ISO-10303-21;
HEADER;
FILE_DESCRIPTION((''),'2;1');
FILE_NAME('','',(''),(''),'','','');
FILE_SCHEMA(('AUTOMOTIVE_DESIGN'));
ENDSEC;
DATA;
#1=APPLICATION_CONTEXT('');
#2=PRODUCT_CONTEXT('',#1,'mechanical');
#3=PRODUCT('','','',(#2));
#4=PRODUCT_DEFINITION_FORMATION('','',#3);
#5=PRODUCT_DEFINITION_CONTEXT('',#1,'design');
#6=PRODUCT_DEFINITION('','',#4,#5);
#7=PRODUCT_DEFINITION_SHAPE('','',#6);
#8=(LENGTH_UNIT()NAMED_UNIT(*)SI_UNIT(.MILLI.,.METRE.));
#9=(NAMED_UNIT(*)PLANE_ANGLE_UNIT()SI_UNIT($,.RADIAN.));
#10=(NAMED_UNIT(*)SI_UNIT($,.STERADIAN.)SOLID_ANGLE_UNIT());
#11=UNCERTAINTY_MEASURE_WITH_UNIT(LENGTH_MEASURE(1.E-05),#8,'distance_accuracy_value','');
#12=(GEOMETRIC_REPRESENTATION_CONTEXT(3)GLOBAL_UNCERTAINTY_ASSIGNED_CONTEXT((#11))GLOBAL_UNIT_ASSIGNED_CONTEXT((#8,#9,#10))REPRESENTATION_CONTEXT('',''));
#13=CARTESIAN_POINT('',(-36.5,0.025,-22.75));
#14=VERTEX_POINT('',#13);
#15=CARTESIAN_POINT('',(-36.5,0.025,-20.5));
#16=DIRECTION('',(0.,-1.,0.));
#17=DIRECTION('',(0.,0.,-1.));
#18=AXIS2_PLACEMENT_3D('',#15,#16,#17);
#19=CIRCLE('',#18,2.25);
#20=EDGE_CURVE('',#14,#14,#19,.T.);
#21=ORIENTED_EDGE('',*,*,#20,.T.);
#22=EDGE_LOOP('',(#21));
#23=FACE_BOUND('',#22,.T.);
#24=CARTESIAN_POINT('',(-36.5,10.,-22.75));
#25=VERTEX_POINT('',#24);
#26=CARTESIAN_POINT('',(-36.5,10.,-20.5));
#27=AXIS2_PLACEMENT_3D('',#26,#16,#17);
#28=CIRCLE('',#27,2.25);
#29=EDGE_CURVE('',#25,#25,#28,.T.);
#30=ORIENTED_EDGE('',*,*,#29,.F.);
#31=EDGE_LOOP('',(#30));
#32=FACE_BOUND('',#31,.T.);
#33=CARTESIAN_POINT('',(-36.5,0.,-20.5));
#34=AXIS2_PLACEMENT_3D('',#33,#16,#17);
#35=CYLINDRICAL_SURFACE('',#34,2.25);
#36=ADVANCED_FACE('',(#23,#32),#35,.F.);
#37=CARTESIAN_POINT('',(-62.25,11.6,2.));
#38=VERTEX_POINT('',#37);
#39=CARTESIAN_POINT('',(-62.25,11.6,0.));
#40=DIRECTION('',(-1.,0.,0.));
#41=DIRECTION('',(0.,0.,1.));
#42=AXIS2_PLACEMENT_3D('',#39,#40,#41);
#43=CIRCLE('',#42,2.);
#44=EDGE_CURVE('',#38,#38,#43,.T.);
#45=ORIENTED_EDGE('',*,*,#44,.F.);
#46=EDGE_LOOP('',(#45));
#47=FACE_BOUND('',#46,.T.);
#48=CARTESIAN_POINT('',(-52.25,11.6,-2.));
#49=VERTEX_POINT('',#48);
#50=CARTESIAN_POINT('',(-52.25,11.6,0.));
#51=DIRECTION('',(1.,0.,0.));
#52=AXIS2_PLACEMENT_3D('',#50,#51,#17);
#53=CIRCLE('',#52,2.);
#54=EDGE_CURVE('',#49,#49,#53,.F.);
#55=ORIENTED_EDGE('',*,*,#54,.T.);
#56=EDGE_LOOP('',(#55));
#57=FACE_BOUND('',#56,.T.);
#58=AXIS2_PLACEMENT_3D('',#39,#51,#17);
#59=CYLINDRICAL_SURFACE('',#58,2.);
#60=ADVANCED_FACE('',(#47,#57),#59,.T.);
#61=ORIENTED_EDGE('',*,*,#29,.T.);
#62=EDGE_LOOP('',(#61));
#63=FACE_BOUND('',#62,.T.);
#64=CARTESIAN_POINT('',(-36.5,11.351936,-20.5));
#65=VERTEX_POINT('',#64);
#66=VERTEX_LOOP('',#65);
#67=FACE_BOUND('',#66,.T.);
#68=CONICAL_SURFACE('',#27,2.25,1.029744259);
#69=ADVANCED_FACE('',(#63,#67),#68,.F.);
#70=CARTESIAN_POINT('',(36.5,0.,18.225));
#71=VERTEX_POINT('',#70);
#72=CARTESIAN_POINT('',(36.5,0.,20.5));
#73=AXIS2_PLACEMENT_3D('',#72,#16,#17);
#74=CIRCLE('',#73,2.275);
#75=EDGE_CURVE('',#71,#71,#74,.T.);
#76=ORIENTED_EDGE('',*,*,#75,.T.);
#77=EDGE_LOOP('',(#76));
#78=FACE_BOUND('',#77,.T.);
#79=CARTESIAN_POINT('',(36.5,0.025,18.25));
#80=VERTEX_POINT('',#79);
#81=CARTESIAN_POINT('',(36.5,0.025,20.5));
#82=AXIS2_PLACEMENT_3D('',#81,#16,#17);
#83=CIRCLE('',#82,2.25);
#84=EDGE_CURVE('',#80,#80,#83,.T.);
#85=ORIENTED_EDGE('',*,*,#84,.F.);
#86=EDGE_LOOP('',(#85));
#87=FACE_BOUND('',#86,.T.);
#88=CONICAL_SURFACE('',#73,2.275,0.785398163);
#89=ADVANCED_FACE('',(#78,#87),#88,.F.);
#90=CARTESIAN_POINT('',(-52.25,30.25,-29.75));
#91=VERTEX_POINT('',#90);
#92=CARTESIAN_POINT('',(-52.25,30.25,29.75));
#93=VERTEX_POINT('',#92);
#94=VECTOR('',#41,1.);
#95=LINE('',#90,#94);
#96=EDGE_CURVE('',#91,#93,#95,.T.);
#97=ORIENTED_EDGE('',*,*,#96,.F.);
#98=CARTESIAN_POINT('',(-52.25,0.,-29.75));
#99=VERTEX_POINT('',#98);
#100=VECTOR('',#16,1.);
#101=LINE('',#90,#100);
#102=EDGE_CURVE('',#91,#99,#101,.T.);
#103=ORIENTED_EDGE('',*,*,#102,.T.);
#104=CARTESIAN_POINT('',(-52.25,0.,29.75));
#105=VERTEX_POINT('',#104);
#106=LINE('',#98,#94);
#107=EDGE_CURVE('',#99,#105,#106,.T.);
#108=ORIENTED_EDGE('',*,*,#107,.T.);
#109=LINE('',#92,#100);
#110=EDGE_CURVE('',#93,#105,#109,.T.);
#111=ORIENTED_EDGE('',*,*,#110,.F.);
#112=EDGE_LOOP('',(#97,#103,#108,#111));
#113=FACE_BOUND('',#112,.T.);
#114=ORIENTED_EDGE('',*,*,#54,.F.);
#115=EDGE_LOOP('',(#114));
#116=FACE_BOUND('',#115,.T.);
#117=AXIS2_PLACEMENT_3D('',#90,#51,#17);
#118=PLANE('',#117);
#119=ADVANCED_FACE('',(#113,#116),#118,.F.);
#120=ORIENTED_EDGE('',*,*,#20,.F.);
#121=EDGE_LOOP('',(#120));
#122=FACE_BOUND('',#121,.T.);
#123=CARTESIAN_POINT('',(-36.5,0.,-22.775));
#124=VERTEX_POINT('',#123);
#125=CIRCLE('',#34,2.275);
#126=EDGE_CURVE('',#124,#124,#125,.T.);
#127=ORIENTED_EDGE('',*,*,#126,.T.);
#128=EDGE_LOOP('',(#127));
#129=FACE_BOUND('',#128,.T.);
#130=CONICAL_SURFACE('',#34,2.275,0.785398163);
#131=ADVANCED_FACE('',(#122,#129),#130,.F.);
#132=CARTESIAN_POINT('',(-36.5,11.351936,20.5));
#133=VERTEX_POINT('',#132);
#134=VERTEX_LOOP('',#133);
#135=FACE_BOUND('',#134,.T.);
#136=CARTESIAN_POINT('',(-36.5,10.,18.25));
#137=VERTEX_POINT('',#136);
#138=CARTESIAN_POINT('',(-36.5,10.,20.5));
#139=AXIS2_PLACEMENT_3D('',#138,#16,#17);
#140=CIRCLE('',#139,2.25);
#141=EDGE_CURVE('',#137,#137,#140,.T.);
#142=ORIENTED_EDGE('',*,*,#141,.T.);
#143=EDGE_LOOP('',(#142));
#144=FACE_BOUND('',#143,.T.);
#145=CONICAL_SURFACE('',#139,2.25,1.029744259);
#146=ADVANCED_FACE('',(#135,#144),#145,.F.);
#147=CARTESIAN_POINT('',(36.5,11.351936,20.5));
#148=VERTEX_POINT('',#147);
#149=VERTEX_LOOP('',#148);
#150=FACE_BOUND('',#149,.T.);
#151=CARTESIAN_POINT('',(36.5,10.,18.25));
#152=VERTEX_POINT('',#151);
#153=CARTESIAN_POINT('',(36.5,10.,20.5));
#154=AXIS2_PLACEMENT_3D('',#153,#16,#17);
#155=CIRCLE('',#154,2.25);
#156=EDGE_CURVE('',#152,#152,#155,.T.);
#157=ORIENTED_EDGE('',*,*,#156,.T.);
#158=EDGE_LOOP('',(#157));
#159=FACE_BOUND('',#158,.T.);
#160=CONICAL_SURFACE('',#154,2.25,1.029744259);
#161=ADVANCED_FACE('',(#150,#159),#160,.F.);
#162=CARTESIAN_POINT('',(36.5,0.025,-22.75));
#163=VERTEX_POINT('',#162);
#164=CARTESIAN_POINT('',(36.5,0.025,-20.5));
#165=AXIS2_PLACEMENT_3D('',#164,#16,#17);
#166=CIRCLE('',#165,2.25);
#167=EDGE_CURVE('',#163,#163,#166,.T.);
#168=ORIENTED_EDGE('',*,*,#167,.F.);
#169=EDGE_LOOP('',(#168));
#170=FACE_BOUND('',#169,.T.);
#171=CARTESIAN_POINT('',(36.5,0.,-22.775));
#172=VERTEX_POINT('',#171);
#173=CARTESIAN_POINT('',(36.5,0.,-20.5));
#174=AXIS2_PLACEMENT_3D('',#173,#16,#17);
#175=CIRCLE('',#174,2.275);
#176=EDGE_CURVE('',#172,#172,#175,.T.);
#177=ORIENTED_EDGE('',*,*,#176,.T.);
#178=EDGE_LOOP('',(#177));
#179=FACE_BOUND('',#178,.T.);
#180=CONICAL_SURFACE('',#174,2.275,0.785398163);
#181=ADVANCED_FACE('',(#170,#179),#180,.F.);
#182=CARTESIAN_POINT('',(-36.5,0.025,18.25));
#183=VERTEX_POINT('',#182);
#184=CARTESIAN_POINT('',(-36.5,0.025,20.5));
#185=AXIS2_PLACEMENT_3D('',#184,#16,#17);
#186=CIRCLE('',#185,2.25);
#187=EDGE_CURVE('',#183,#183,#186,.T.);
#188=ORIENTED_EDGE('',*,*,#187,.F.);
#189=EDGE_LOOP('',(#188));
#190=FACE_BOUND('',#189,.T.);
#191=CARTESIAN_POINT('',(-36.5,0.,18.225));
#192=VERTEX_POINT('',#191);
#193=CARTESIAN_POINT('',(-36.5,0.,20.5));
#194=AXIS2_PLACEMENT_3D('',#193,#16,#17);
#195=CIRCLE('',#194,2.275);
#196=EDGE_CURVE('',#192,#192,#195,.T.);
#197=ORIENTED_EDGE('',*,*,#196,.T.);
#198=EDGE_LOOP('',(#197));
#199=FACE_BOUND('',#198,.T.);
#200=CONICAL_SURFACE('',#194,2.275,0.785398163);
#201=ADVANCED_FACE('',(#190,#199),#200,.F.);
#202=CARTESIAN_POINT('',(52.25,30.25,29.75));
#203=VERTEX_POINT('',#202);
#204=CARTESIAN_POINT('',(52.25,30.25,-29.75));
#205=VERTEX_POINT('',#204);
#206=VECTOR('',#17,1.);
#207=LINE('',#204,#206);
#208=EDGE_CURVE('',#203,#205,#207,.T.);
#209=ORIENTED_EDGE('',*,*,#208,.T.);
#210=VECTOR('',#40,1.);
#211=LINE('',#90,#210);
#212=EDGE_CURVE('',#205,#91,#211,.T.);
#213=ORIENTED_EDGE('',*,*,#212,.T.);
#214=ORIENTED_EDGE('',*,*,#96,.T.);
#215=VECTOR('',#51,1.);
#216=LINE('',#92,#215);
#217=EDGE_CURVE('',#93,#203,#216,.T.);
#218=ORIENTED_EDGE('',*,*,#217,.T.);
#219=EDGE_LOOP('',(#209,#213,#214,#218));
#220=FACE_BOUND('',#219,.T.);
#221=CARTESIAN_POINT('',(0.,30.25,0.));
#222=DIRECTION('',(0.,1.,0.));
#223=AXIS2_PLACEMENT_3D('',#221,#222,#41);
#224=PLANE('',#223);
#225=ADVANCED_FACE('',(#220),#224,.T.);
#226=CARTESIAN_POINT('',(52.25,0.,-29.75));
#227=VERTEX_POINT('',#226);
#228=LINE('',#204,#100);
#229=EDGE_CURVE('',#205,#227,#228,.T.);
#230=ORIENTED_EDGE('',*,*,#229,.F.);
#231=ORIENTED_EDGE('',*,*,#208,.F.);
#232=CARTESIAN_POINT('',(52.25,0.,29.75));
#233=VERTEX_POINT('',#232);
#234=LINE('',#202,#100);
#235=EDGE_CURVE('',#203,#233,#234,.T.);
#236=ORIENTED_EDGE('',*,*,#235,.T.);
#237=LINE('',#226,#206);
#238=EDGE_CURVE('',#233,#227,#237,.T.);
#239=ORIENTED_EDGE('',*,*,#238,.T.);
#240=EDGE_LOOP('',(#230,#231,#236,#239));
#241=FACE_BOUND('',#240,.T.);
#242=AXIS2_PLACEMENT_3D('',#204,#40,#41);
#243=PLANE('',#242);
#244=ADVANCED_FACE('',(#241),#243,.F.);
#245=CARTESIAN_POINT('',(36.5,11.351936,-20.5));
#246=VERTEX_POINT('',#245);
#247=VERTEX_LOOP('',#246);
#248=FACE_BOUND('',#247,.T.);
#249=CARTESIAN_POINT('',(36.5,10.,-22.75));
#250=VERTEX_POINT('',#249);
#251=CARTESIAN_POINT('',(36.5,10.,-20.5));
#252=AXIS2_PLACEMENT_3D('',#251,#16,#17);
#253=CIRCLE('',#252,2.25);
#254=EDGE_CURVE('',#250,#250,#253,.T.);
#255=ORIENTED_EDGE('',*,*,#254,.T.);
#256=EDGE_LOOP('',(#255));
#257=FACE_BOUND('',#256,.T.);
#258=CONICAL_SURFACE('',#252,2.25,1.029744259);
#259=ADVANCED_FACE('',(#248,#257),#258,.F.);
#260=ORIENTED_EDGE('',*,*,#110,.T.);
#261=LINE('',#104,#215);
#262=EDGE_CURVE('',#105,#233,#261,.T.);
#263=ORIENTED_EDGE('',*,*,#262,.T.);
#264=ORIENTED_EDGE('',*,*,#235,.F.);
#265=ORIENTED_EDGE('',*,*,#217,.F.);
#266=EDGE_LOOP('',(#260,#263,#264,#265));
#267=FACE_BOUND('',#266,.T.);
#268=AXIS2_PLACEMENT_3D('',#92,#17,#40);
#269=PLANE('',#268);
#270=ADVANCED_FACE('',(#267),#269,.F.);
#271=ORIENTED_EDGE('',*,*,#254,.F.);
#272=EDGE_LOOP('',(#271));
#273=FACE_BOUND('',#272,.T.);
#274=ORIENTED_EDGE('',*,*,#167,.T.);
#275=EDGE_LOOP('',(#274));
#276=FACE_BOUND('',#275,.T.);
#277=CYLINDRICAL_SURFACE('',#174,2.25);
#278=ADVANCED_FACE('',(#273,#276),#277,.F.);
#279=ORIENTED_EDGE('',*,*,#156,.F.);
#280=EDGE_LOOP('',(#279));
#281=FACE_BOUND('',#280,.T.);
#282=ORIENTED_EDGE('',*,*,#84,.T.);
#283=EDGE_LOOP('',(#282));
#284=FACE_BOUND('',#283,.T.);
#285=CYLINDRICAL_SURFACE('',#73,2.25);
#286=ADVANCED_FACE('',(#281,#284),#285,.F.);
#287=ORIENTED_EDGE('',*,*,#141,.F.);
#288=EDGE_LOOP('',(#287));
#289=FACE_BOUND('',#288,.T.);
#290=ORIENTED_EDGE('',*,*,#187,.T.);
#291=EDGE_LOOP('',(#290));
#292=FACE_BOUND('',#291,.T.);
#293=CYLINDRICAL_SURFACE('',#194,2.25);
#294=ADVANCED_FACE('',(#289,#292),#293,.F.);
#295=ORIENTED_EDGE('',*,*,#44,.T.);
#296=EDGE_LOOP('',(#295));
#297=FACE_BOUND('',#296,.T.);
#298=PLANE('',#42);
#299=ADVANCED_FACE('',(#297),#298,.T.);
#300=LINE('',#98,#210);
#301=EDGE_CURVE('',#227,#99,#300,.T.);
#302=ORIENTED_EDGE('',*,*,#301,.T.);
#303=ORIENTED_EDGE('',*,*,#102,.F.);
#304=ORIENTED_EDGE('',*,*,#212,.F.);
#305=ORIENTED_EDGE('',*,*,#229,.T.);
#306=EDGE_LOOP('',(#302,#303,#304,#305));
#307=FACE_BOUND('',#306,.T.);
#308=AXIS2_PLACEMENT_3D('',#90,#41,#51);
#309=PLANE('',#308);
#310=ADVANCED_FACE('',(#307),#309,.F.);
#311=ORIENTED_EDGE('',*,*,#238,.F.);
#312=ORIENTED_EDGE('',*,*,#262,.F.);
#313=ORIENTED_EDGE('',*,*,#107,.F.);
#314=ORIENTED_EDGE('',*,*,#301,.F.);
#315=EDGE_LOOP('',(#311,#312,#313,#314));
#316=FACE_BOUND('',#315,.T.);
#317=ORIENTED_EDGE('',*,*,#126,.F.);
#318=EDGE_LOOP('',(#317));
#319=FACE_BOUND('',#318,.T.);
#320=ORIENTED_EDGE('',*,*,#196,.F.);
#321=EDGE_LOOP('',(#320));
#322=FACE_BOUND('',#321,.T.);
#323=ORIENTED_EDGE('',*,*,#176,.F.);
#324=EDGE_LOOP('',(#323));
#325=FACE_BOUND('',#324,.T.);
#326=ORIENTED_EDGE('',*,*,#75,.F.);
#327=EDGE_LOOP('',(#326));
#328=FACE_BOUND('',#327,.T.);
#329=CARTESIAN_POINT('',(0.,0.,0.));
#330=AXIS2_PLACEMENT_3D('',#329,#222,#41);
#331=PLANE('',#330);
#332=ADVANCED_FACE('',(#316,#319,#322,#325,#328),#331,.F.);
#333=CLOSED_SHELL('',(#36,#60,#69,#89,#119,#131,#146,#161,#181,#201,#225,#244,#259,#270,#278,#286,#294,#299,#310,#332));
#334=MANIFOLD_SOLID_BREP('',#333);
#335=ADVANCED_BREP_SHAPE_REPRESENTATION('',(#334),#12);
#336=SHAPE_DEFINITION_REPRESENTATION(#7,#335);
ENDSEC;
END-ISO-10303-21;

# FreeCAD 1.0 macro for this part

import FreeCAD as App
import Part
import Sketcher

V = App.Vector


def add_polygon(sketch, points):
    """Adds a closed chain of lines whose ends are joined by coincident constraints."""
    first, n = sketch.GeometryCount, len(points)
    for a, b in zip(points, points[1:] + points[:1]):
        sketch.addGeometry(Part.LineSegment(App.Vector(*a, 0), App.Vector(*b, 0)), False)
    for i in range(n):
        sketch.addConstraint(Sketcher.Constraint("Coincident", first + i, 2, first + (i + 1) % n, 1))

doc = App.newDocument("Part")
body = doc.addObject("PartDesign::Body", "Body")

sketch1 = body.newObject("Sketcher::SketchObject", "Sketch")
sketch1.AttachmentSupport = (doc.getObject("XZ_Plane"), [""])
sketch1.MapMode = "FlatFace"
add_polygon(sketch1, [(-52.25, -29.75), (-52.25, 29.75), (52.25, 29.75), (52.25, -29.75)])
sketch1.addConstraint([
    Sketcher.Constraint("Vertical", 0),
    Sketcher.Constraint("Horizontal", 1),
    Sketcher.Constraint("Vertical", 2),
    Sketcher.Constraint("Horizontal", 3),
    Sketcher.Constraint("Symmetric", 0, 2, 2, 2, -1, 1),
    Sketcher.Constraint("DistanceX", 1, 1, 1, 2, 104.5),
    Sketcher.Constraint("DistanceY", 0, 1, 0, 2, 59.5),
])
pad1 = body.newObject("PartDesign::Pad", "Pad")
pad1.Profile = sketch1
pad1.Length = 30.25
pad1.Reversed = True

sketch2 = body.newObject("Sketcher::SketchObject", "Sketch001")
sketch2.AttachmentSupport = (doc.getObject("YZ_Plane"), [""])
sketch2.MapMode = "FlatFace"
sketch2.AttachmentOffset = App.Placement(V(0, 0, -52.25), App.Rotation())
sketch2.addGeometry(Part.Circle(V(11.6, 0, 0), V(0, 0, 1), 2), False)
sketch2.addConstraint([
    Sketcher.Constraint("PointOnObject", 0, 3, -1),
    Sketcher.Constraint("Diameter", 0, 4.0),
    Sketcher.Constraint("DistanceX", -1, 1, 0, 3, 11.6),
])
pad2 = body.newObject("PartDesign::Pad", "Pad001")
pad2.Profile = sketch2
pad2.Length = 10
pad2.Reversed = True

sketch3 = body.newObject("Sketcher::SketchObject", "Sketch002")
sketch3.AttachmentSupport = (doc.getObject("XZ_Plane"), [""])
sketch3.MapMode = "FlatFace"
sketch3.addGeometry([
    Part.Circle(V(-36.5, -20.5, 0), V(0, 0, 1), 2.25),
    Part.Circle(V(36.5, -20.5, 0), V(0, 0, 1), 2.25),
    Part.Circle(V(36.5, 20.5, 0), V(0, 0, 1), 2.25),
    Part.Circle(V(-36.5, 20.5, 0), V(0, 0, 1), 2.25),
], False)
sketch3.addConstraint([
    Sketcher.Constraint("Equal", 0, 1),
    Sketcher.Constraint("Equal", 1, 2),
    Sketcher.Constraint("Equal", 2, 3),
    Sketcher.Constraint("Symmetric", 0, 3, 2, 3, -1, 1),
    Sketcher.Constraint("Symmetric", 1, 3, 3, 3, -1, 1),
    Sketcher.Constraint("Symmetric", 0, 3, 1, 3, -2),
    Sketcher.Constraint("Diameter", 0, 4.5),
    Sketcher.Constraint("DistanceX", 0, 3, 1, 3, 73.0),
    Sketcher.Constraint("DistanceY", 1, 3, 2, 3, 41.0),
])
doc.recompute()
hole = body.newObject("PartDesign::Hole", "Hole")
hole.Profile = sketch3
hole.ThreadType = "None"
hole.Diameter = 4.5
hole.DepthType = "Dimension"
hole.Depth = 10
hole.DrillPoint = "Angled"
hole.DrillPointAngle = 118
hole.HoleCutType = "Countersink"
hole.HoleCutDiameter = 4.55
hole.HoleCutCountersinkAngle = 90

doc.recompute()
